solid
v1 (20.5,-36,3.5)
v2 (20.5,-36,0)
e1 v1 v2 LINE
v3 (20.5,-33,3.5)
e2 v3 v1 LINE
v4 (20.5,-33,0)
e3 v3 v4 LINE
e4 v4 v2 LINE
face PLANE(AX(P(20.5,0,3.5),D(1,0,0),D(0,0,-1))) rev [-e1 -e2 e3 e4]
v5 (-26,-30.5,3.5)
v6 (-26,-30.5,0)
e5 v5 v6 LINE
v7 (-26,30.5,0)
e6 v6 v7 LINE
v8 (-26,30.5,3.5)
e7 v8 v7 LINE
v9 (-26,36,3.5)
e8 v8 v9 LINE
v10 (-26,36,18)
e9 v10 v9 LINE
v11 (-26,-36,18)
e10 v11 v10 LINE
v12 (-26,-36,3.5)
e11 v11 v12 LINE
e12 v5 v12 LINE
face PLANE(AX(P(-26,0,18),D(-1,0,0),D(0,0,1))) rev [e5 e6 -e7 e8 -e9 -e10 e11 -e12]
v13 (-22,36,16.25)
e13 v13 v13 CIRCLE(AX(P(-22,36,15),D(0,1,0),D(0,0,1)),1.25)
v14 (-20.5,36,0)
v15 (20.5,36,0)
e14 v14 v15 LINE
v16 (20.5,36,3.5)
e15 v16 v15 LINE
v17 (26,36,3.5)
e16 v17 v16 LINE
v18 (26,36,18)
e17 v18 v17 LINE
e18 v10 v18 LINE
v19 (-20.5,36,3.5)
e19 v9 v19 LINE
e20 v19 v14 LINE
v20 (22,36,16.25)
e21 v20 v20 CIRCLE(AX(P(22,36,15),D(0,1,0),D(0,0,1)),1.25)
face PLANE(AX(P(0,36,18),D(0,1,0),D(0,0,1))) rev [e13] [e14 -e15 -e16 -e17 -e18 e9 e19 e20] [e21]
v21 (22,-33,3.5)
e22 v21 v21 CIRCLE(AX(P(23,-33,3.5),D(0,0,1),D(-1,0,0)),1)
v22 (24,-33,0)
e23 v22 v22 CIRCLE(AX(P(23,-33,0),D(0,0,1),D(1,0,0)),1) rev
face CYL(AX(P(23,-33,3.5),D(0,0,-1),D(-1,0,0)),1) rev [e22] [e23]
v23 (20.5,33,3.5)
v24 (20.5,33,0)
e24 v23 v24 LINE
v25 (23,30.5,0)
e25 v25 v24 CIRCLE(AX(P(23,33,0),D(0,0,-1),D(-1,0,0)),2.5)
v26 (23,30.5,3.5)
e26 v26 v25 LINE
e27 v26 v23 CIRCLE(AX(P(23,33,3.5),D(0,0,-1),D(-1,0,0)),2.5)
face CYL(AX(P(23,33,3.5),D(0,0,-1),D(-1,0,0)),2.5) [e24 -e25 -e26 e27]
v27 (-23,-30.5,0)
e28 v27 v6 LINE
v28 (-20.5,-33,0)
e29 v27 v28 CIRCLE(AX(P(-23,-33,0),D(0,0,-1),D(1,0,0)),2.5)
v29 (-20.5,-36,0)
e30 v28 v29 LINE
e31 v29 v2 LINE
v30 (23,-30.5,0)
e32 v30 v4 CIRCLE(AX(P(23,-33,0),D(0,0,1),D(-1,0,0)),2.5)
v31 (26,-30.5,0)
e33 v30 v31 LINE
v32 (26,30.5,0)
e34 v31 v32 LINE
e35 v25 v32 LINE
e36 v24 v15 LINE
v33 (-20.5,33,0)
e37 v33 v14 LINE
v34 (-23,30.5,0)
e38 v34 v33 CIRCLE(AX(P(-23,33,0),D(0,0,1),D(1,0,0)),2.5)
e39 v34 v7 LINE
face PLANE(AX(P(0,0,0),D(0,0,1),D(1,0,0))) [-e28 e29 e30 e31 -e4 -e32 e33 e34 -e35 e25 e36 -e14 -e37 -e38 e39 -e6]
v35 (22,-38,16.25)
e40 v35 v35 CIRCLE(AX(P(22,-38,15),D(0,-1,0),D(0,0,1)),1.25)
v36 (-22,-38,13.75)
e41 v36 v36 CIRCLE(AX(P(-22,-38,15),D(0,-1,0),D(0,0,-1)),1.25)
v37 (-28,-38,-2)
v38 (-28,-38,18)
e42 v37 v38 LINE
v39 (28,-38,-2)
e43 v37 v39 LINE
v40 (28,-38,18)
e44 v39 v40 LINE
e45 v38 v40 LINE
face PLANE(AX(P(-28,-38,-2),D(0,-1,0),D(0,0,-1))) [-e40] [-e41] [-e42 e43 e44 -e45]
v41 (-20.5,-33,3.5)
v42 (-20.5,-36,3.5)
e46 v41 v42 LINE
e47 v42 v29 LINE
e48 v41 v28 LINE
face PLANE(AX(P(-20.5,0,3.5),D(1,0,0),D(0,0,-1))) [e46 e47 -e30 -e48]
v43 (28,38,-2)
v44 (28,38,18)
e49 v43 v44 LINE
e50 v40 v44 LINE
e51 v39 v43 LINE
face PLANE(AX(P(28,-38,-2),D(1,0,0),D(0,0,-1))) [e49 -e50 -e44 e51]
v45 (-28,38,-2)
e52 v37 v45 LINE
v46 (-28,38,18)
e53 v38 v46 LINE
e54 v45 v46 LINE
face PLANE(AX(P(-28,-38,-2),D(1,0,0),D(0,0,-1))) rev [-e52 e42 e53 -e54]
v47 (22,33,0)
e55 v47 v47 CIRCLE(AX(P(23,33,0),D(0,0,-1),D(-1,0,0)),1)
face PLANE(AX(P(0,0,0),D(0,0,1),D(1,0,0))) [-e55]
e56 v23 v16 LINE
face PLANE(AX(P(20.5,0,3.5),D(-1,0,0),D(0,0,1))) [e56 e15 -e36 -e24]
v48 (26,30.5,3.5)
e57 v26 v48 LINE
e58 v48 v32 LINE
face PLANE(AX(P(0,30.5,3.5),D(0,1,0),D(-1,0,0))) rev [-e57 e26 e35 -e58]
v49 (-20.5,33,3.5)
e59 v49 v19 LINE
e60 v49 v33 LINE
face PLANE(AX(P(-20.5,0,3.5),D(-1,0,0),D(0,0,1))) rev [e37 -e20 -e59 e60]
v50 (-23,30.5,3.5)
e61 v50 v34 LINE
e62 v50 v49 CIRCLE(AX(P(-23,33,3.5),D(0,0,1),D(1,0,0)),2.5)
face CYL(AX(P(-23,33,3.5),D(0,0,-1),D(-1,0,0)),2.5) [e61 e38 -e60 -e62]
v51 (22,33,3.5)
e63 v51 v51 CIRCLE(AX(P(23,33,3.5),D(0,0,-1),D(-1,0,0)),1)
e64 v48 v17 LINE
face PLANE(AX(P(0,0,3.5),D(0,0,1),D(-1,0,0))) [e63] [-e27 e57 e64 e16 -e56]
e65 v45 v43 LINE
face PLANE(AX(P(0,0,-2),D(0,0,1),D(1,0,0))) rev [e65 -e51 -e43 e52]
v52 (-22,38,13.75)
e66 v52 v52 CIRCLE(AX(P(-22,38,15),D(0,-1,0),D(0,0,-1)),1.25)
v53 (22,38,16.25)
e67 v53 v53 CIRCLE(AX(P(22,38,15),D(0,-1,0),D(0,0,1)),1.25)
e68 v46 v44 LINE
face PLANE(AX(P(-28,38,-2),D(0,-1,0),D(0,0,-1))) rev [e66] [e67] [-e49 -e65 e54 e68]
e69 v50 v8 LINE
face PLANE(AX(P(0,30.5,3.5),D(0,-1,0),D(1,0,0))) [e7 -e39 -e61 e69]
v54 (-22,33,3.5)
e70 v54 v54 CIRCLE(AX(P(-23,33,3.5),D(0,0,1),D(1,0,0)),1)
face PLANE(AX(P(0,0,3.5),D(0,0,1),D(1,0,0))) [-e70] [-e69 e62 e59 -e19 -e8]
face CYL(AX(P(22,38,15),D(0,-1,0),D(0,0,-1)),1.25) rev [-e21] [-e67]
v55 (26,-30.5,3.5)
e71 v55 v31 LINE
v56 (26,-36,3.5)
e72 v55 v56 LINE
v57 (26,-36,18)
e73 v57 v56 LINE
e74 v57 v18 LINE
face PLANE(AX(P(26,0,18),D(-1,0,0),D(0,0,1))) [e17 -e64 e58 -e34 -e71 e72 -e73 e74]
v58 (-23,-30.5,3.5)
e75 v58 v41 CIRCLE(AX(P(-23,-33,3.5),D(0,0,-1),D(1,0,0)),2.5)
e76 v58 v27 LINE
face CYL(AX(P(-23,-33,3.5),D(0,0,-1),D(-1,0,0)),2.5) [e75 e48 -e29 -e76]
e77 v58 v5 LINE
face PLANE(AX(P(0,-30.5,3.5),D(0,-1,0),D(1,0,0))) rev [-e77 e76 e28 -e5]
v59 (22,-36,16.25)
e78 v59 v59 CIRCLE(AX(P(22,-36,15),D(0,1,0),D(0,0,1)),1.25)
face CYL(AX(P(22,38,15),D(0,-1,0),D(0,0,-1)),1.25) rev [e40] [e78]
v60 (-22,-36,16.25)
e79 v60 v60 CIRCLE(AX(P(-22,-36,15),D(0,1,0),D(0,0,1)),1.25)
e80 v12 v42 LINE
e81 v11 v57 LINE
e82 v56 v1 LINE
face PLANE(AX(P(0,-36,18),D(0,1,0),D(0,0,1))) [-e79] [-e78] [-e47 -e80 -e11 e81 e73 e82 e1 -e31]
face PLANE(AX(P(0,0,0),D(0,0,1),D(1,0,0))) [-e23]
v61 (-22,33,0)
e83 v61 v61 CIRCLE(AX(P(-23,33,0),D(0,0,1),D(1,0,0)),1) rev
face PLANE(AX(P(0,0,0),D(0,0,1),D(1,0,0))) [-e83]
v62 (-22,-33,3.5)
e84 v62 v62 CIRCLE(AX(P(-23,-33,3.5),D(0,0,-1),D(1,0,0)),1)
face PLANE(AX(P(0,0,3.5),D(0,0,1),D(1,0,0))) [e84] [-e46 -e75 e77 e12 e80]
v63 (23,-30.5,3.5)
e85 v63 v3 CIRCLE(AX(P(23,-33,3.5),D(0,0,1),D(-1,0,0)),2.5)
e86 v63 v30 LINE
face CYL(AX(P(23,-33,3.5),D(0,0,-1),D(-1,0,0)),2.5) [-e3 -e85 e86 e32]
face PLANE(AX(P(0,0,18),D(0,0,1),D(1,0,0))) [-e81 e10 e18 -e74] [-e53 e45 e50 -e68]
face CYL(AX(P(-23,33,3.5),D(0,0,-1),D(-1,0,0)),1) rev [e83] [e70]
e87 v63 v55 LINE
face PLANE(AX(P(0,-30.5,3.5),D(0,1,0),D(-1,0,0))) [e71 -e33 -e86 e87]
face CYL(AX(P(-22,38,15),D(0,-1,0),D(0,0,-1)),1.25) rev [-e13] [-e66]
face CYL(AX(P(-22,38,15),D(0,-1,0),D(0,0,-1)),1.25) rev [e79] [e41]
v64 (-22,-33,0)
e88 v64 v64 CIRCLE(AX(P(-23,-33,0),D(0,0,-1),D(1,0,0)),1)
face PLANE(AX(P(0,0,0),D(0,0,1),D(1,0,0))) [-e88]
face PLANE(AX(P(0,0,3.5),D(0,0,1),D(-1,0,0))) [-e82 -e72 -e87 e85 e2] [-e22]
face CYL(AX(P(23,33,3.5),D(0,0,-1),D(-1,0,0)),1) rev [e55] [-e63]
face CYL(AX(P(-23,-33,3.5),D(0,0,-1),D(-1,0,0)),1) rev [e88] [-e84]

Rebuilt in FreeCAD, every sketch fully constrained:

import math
import FreeCAD as App
import Part
import Sketcher

V = App.Vector
Q = App.Units.Quantity


def add_polygon(sketch, points):
    """Adds a closed chain of lines whose ends are joined by coincident constraints."""
    first, n = sketch.GeometryCount, len(points)
    for a, b in zip(points, points[1:] + points[:1]):
        sketch.addGeometry(Part.LineSegment(App.Vector(*a, 0), App.Vector(*b, 0)), False)
    for i in range(n):
        sketch.addConstraint(Sketcher.Constraint("Coincident", first + i, 2, first + (i + 1) % n, 1))

doc = App.newDocument("Part")
params = doc.addObject("Spreadsheet::Sheet", "Params")
for row, (alias, value) in enumerate([
    ("sketch1_width", "56 mm"),
    ("sketch1_height", "76 mm"),
    ("pad1_length", "2 mm"),
    ("sketch2_width", "56 mm"),
    ("sketch2_width2", "52 mm"),
    ("sketch2_height", "76 mm"),
    ("sketch2_height2", "72 mm"),
    ("pad2_length", "18 mm"),
    ("sketch3_diameter", "2 mm"),
    ("sketch3_radius", "2.5 mm"),
    ("sketch3_width", "3 mm"),
    ("pad3_length", "3.5 mm"),
    ("sketch4_diameter", "2 mm"),
    ("sketch4_radius", "2.5 mm"),
    ("sketch4_width", "3 mm"),
    ("pad4_length", "3.5 mm"),
    ("sketch5_diameter", "2.5 mm"),
], start=1):
    params.set(f"A{row}", alias)
    params.set(f"B{row}", "=" + value)
    params.setAlias(f"B{row}", alias)

body = doc.addObject("PartDesign::Body", "Body")

# Sketch on XY plane
sketch1 = doc.addObject("Sketcher::SketchObject", "Sketch")
body.addObject(sketch1)
sketch1.AttachmentSupport = (doc.XY_Plane, [""])
sketch1.MapMode = "FlatFace"
add_polygon(sketch1, [(-28, 38), (-28, -38), (28, -38), (28, 38)])  # lines 0-3
sketch1.addConstraint([
    Sketcher.Constraint("Vertical", 0),
    Sketcher.Constraint("Horizontal", 1),
    Sketcher.Constraint("Vertical", 2),
    Sketcher.Constraint("Horizontal", 3),
    Sketcher.Constraint("Symmetric", 0, 2, 2, 2, -1, 1),
    Sketcher.Constraint("DistanceX", 1, 1, 1, 2, Q("56 mm")),
    Sketcher.Constraint("DistanceY", 0, 2, 0, 1, Q("76 mm")),
])
sketch1.setExpression("Constraints[9]", "Params.sketch1_width")
sketch1.setExpression("Constraints[10]", "Params.sketch1_height")
pad1 = doc.addObject("PartDesign::Pad", "Pad")
body.addObject(pad1)
pad1.Profile = sketch1
pad1.setExpression("Length", "Params.pad1_length")
pad1.Reversed = True

# Sketch on XY plane
sketch2 = doc.addObject("Sketcher::SketchObject", "Sketch001")
body.addObject(sketch2)
sketch2.AttachmentSupport = (doc.XY_Plane, [""])
sketch2.MapMode = "FlatFace"
add_polygon(sketch2, [(-28, 38), (-28, -38), (28, -38), (28, 38)])  # lines 0-3
add_polygon(sketch2, [(26, -36), (-26, -36), (-26, 36), (26, 36)])  # lines 4-7
sketch2.addConstraint([
    Sketcher.Constraint("Vertical", 0),
    Sketcher.Constraint("Horizontal", 1),
    Sketcher.Constraint("Vertical", 2),
    Sketcher.Constraint("Horizontal", 3),
    Sketcher.Constraint("Horizontal", 4),
    Sketcher.Constraint("Vertical", 5),
    Sketcher.Constraint("Horizontal", 6),
    Sketcher.Constraint("Vertical", 7),
    Sketcher.Constraint("Symmetric", 0, 2, 2, 2, -1, 1),
    Sketcher.Constraint("Symmetric", 4, 2, 6, 2, -1, 1),
    Sketcher.Constraint("DistanceX", 1, 1, 1, 2, Q("56 mm")),
    Sketcher.Constraint("DistanceX", 4, 2, 4, 1, Q("52 mm")),
    Sketcher.Constraint("DistanceY", 0, 2, 0, 1, Q("76 mm")),
    Sketcher.Constraint("DistanceY", 5, 1, 5, 2, Q("72 mm")),
])
sketch2.setExpression("Constraints[18]", "Params.sketch2_width")
sketch2.setExpression("Constraints[19]", "Params.sketch2_width2")
sketch2.setExpression("Constraints[20]", "Params.sketch2_height")
sketch2.setExpression("Constraints[21]", "Params.sketch2_height2")
pad2 = doc.addObject("PartDesign::Pad", "Pad001")
body.addObject(pad2)
pad2.Profile = sketch2
pad2.setExpression("Length", "Params.pad2_length")

# Sketch on XY plane
sketch3 = doc.addObject("Sketcher::SketchObject", "Sketch002")
body.addObject(sketch3)
sketch3.AttachmentSupport = (doc.XY_Plane, [""])
sketch3.MapMode = "FlatFace"
sketch3.addGeometry([
    Part.ArcOfCircle(Part.Circle(V(-23, 33, 0), V(0, 0, 1), 2.5), math.radians(-90), math.radians(0)),  # 0
    Part.LineSegment(V(-20.5, 33, 0), V(-20.5, 36, 0)),  # 1
    Part.LineSegment(V(-20.5, 36, 0), V(-26, 36, 0)),  # 2
    Part.LineSegment(V(-26, 36, 0), V(-26, 30.5, 0)),  # 3
    Part.LineSegment(V(-26, 30.5, 0), V(-23, 30.5, 0)),  # 4
    Part.Circle(V(-23, 33, 0), V(0, 0, 1), 1),  # 5
], False)
sketch3.addConstraint([
    Sketcher.Constraint("Tangent", 0, 2, 1, 1),
    Sketcher.Constraint("Coincident", 1, 2, 2, 1),
    Sketcher.Constraint("Coincident", 2, 2, 3, 1),
    Sketcher.Constraint("Coincident", 3, 2, 4, 1),
    Sketcher.Constraint("Tangent", 4, 2, 0, 1),
    Sketcher.Constraint("Vertical", 1),
    Sketcher.Constraint("Horizontal", 2),
    Sketcher.Constraint("Vertical", 3),
    Sketcher.Constraint("Horizontal", 4),
    Sketcher.Constraint("Coincident", 5, 3, 0, 3),
    Sketcher.Constraint("Equal", 4, 1),
    Sketcher.Constraint("Diameter", 5, Q("2 mm")),
    Sketcher.Constraint("Radius", 0, Q("2.5 mm")),
    Sketcher.Constraint("DistanceX", 4, 1, 4, 2, Q("3 mm")),
    Sketcher.Constraint("DistanceX", 0, 3, -1, 1, Q("23 mm")),
    Sketcher.Constraint("DistanceY", -1, 1, 0, 3, Q("33 mm")),
])
sketch3.setExpression("Constraints[11]", "Params.sketch3_diameter")
sketch3.setExpression("Constraints[12]", "Params.sketch3_radius")
sketch3.setExpression("Constraints[13]", "Params.sketch3_width")
pad3 = doc.addObject("PartDesign::Pad", "Pad002")
body.addObject(pad3)
pad3.Profile = sketch3
pad3.setExpression("Length", "Params.pad3_length")
doc.recompute()

mirrored = doc.addObject("PartDesign::Mirrored", "Mirrored")
body.addObject(mirrored)
mirrored.Originals = [pad3]
mirrored.MirrorPlane = (doc.YZ_Plane, [""])
body.Tip = mirrored
doc.recompute()

mirrored2 = doc.addObject("PartDesign::Mirrored", "Mirrored001")
body.addObject(mirrored2)
mirrored2.Originals = [pad3]
mirrored2.MirrorPlane = (doc.XZ_Plane, [""])
body.Tip = mirrored2

# Sketch on XY plane
sketch4 = doc.addObject("Sketcher::SketchObject", "Sketch003")
body.addObject(sketch4)
sketch4.AttachmentSupport = (doc.XY_Plane, [""])
sketch4.MapMode = "FlatFace"
sketch4.addGeometry([
    Part.ArcOfCircle(Part.Circle(V(23, -33, 0), V(0, 0, 1), 2.5), math.radians(90), math.radians(180)),  # 0
    Part.LineSegment(V(20.5, -33, 0), V(20.5, -36, 0)),  # 1
    Part.LineSegment(V(20.5, -36, 0), V(26, -36, 0)),  # 2
    Part.LineSegment(V(26, -36, 0), V(26, -30.5, 0)),  # 3
    Part.LineSegment(V(26, -30.5, 0), V(23, -30.5, 0)),  # 4
    Part.Circle(V(23, -33, 0), V(0, 0, 1), 1),  # 5
], False)
sketch4.addConstraint([
    Sketcher.Constraint("Tangent", 0, 2, 1, 1),
    Sketcher.Constraint("Coincident", 1, 2, 2, 1),
    Sketcher.Constraint("Coincident", 2, 2, 3, 1),
    Sketcher.Constraint("Coincident", 3, 2, 4, 1),
    Sketcher.Constraint("Tangent", 4, 2, 0, 1),
    Sketcher.Constraint("Vertical", 1),
    Sketcher.Constraint("Horizontal", 2),
    Sketcher.Constraint("Vertical", 3),
    Sketcher.Constraint("Horizontal", 4),
    Sketcher.Constraint("Coincident", 5, 3, 0, 3),
    Sketcher.Constraint("Equal", 4, 1),
    Sketcher.Constraint("Diameter", 5, Q("2 mm")),
    Sketcher.Constraint("Radius", 0, Q("2.5 mm")),
    Sketcher.Constraint("DistanceX", 4, 2, 4, 1, Q("3 mm")),
    Sketcher.Constraint("DistanceX", -1, 1, 0, 3, Q("23 mm")),
    Sketcher.Constraint("DistanceY", 0, 3, -1, 1, Q("33 mm")),
])
sketch4.setExpression("Constraints[11]", "Params.sketch4_diameter")
sketch4.setExpression("Constraints[12]", "Params.sketch4_radius")
sketch4.setExpression("Constraints[13]", "Params.sketch4_width")
pad4 = doc.addObject("PartDesign::Pad", "Pad003")
body.addObject(pad4)
pad4.Profile = sketch4
pad4.setExpression("Length", "Params.pad4_length")

# Sketch on XZ plane
sketch5 = doc.addObject("Sketcher::SketchObject", "Sketch004")
body.addObject(sketch5)
sketch5.AttachmentSupport = (doc.XZ_Plane, [""])
sketch5.MapMode = "FlatFace"
sketch5.AttachmentOffset = App.Placement(V(0, 0, 38), App.Rotation())
sketch5.addGeometry([
    Part.Circle(V(-22, 15, 0), V(0, 0, 1), 1.25),
    Part.Circle(V(22, 15, 0), V(0, 0, 1), 1.25),
], False)
sketch5.addConstraint([
    Sketcher.Constraint("Equal", 0, 1),
    Sketcher.Constraint("Symmetric", 0, 3, 1, 3, -2),
    Sketcher.Constraint("Diameter", 0, Q("2.5 mm")),
    Sketcher.Constraint("DistanceX", 0, 3, -1, 1, Q("22 mm")),
    Sketcher.Constraint("DistanceY", -1, 1, 0, 3, Q("15 mm")),
])
sketch5.setExpression("Constraints[2]", "Params.sketch5_diameter")
pocket1 = doc.addObject("PartDesign::Pocket", "Pocket")
body.addObject(pocket1)
pocket1.Profile = sketch5
pocket1.Type = "ThroughAll"

doc.recompute()
